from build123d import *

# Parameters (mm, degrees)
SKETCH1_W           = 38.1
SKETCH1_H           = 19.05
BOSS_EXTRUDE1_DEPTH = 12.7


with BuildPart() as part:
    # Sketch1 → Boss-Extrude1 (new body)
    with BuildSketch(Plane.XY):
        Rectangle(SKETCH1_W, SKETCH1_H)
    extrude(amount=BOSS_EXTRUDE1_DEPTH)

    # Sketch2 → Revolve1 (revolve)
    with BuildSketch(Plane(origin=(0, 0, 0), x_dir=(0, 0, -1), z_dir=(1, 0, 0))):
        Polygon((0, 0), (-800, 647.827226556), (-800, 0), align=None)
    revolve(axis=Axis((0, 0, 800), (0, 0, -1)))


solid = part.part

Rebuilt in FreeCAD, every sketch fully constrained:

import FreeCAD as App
import Part
import Sketcher
from FreeCAD import Vector
Q = App.Units.Quantity

doc = App.newDocument("Part")
params = doc.addObject("Spreadsheet::Sheet", "Params")
for row, (alias, value) in enumerate([
    ("sketch1_width", "1.5 in"),
    ("sketch1_height", "0.75 in"),
    ("pad1_length", "0.5 in"),
    ("revolution_angle", "360 deg"),
], start=1):
    params.set(f"A{row}", alias)
    params.set(f"B{row}", "=" + value)
    params.setAlias(f"B{row}", alias)

body = doc.addObject("PartDesign::Body", "Body")

sketch1 = body.newObject("Sketcher::SketchObject", "Sketch")
sketch1.AttachmentSupport = (doc.getObject("XY_Plane"), [""])
sketch1.MapMode = "FlatFace"
sketch1.addGeometry([
    Part.LineSegment(Vector(-19, 10, 0), Vector(-19, -10, 0)),
    Part.LineSegment(Vector(-19, -10, 0), Vector(19, -10, 0)),
    Part.LineSegment(Vector(19, -10, 0), Vector(19, 10, 0)),
    Part.LineSegment(Vector(19, 10, 0), Vector(-19, 10, 0)),
], False)
sketch1.addConstraint([
    Sketcher.Constraint("Coincident", 0, 2, 1, 1),
    Sketcher.Constraint("Coincident", 1, 2, 2, 1),
    Sketcher.Constraint("Coincident", 2, 2, 3, 1),
    Sketcher.Constraint("Coincident", 3, 2, 0, 1),
    Sketcher.Constraint("Vertical", 0),
    Sketcher.Constraint("Horizontal", 1),
    Sketcher.Constraint("Vertical", 2),
    Sketcher.Constraint("Horizontal", 3),
    Sketcher.Constraint("Symmetric", 0, 2, 2, 2, -1, 1),
    Sketcher.Constraint("DistanceX", 1, 1, 1, 2, Q("1.5 in")),
    Sketcher.Constraint("DistanceY", 0, 2, 0, 1, Q("0.75 in")),
])
sketch1.setExpression("Constraints[9]", "Params.sketch1_width")
sketch1.setExpression("Constraints[10]", "Params.sketch1_height")
pad1 = body.newObject("PartDesign::Pad", "Pad")
pad1.Profile = sketch1
pad1.setExpression("Length", "Params.pad1_length")

sketch2 = body.newObject("Sketcher::SketchObject", "Sketch001")
sketch2.AttachmentSupport = (doc.getObject("YZ_Plane"), [""])
sketch2.MapMode = "FlatFace"
sketch2.addGeometry([
    Part.LineSegment(Vector(0, 0, 0), Vector(648, 800, 0)),
    Part.LineSegment(Vector(648, 800, 0), Vector(0, 800, 0)),
    Part.LineSegment(Vector(0, 800, 0), Vector(0, 0, 0)),
], False)
sketch2.addConstraint([
    Sketcher.Constraint("Coincident", 0, 2, 1, 1),
    Sketcher.Constraint("Coincident", 1, 2, 2, 1),
    Sketcher.Constraint("Coincident", 2, 2, 0, 1),
    Sketcher.Constraint("Horizontal", 1),
    Sketcher.Constraint("Vertical", 2),
    Sketcher.Constraint("Coincident", 2, 2, -1, 1),
    Sketcher.Constraint("Angle", 0, Q("51 deg")),
    Sketcher.Constraint("DistanceY", 2, 2, 2, 1, 800.0),
])
revolution = body.newObject("PartDesign::Revolution", "Revolution")
revolution.Profile = sketch2
revolution.ReferenceAxis = (sketch2, ["V_Axis"])
revolution.setExpression("Angle", "Params.revolution_angle")

doc.recompute()
